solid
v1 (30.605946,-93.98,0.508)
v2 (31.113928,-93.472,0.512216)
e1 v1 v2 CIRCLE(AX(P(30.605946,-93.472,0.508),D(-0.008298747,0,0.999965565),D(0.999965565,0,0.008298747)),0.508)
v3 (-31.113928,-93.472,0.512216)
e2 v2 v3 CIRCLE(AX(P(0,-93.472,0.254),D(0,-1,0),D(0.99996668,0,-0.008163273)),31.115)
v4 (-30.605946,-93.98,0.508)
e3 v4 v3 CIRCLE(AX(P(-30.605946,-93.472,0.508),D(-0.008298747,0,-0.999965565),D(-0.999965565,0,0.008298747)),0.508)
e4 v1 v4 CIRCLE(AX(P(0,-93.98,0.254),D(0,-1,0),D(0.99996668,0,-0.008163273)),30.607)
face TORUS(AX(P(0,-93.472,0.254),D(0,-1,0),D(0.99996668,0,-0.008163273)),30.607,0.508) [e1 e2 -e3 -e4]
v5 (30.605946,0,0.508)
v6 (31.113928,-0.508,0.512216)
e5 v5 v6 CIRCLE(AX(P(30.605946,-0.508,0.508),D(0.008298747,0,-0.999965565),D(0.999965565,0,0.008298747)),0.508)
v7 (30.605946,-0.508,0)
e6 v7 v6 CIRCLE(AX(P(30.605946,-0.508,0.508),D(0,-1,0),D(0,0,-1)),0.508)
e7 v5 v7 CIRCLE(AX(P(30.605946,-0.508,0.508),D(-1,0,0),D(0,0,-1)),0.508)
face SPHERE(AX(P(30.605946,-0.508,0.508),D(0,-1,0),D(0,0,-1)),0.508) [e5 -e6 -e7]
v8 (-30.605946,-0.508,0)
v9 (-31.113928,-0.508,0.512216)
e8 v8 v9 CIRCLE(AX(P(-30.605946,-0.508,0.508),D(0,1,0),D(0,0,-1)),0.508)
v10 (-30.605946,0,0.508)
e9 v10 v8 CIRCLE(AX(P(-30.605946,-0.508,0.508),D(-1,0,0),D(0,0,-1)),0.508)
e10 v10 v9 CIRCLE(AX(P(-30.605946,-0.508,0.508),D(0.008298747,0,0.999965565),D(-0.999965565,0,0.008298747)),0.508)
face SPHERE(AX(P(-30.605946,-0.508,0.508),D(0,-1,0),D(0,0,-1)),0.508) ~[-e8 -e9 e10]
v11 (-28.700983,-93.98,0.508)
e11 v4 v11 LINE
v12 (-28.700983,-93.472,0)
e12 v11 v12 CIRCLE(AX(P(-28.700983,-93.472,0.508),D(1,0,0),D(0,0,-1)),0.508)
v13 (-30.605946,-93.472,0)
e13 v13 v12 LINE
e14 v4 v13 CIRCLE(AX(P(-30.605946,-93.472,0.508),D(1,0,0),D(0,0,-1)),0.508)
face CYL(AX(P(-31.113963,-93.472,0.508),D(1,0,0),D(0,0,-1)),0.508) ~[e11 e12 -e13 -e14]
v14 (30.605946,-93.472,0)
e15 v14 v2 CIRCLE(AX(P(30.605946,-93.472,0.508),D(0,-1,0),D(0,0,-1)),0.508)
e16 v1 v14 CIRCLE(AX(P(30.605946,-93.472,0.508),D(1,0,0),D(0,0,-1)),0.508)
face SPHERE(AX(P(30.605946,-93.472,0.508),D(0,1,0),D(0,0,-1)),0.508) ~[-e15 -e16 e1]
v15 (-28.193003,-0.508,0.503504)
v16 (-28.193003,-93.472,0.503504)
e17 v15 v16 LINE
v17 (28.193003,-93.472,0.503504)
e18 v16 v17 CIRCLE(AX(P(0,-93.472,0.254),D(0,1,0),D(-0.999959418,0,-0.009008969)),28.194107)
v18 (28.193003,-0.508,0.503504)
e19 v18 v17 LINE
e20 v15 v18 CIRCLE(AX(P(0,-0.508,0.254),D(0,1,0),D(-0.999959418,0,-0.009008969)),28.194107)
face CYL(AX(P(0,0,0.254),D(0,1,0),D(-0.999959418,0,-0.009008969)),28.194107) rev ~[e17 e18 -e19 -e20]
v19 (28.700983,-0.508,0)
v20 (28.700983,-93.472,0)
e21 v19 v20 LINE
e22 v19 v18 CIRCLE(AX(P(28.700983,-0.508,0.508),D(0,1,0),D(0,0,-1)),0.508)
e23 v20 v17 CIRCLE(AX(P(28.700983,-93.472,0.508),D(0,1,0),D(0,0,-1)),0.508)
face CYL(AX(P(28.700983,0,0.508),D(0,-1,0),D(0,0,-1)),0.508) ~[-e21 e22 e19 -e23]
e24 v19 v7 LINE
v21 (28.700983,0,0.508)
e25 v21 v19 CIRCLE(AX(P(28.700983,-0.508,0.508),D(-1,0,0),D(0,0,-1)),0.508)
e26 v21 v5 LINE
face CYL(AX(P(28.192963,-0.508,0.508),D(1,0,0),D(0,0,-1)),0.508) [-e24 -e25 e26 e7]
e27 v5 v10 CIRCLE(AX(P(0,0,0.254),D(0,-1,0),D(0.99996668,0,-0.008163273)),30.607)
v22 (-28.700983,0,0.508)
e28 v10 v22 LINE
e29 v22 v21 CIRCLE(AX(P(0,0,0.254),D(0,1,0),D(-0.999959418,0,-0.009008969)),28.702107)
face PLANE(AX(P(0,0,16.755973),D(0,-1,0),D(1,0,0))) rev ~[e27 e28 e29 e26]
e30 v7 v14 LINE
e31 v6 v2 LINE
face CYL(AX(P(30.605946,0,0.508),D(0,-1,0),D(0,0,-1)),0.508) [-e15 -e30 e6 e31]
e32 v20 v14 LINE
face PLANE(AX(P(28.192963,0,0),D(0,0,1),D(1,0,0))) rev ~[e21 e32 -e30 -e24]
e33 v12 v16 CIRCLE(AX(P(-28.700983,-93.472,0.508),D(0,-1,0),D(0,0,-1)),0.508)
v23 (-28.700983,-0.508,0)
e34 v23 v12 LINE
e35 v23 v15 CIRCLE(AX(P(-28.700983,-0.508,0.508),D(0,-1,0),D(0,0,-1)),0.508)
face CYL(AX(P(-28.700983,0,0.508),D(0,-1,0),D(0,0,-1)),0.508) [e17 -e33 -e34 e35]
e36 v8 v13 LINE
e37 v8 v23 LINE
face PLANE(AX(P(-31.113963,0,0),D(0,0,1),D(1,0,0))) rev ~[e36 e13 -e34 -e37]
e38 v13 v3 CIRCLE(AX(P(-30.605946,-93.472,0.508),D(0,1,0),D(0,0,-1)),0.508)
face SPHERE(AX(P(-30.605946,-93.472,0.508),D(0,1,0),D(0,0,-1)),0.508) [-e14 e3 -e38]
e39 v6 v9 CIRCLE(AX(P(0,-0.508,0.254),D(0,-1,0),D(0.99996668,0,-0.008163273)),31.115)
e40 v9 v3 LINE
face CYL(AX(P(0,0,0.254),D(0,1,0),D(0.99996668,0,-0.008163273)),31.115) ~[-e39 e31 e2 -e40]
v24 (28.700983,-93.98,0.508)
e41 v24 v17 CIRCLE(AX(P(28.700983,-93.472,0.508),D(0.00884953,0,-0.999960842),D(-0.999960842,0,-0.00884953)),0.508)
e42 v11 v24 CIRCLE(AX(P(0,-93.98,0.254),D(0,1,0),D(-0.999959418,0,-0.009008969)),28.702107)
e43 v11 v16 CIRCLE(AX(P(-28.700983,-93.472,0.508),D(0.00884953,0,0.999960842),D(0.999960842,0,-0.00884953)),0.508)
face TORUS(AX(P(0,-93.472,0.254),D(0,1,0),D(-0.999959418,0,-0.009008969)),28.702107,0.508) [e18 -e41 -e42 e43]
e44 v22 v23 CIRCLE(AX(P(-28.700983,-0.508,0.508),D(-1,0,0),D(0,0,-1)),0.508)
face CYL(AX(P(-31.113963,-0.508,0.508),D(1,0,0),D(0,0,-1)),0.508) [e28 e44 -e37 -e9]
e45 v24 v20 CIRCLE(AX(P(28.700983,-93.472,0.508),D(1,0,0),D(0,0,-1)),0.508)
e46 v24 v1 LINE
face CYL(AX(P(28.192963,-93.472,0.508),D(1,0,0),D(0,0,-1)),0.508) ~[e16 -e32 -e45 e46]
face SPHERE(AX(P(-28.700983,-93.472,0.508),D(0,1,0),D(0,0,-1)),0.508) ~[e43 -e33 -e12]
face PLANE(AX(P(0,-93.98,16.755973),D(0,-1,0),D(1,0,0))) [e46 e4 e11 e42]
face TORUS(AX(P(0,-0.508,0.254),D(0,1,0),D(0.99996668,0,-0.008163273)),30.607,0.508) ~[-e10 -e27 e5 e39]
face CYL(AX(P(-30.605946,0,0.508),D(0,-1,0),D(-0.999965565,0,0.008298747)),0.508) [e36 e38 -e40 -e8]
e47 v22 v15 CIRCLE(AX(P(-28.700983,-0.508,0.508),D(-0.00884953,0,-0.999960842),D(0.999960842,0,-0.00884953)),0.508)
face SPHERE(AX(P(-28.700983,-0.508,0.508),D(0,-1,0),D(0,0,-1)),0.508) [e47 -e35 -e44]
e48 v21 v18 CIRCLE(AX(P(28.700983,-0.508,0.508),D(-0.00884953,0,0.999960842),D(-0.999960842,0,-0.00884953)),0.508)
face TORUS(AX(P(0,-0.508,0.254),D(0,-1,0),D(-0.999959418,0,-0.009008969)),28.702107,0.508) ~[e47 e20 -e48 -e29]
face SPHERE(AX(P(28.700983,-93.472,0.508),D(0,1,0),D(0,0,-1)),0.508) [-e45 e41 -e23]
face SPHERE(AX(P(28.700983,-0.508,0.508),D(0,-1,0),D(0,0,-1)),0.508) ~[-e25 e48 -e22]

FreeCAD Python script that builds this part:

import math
import FreeCAD as App
import Part
import Sketcher

V = App.Vector
Q = App.Units.Quantity

doc = App.newDocument("Part")
body = doc.addObject("PartDesign::Body", "Body")

# Sketch on XZ plane
sketch1 = doc.addObject("Sketcher::SketchObject", "Sketch")
body.addObject(sketch1)
sketch1.AttachmentSupport = (doc.XZ_Plane, [""])
sketch1.MapMode = "FlatFace"
sketch1.addGeometry([
    Part.LineSegment(V(28.2, 0, 0), V(31.1, 0, 0)),
    Part.ArcOfCircle(Part.Circle(V(0, 0.3, 0), V(0, 0, 1), 31.1), math.radians(0), math.radians(180)),
    Part.LineSegment(V(-31.1, 0, 0), V(-28.2, 0, 0)),
    Part.ArcOfCircle(Part.Circle(V(0, 0.3, 0), V(0, 0, 1), 28.2), math.radians(-1), math.radians(181)),
], False)
sketch1.addConstraint([
    Sketcher.Constraint("Coincident", 0, 2, 1, 1),
    Sketcher.Constraint("Coincident", 1, 2, 2, 1),
    Sketcher.Constraint("Coincident", 2, 2, 3, 2),
    Sketcher.Constraint("Coincident", 3, 1, 0, 1),
    Sketcher.Constraint("Horizontal", 0),
    Sketcher.Constraint("Horizontal", 2),
    Sketcher.Constraint("Coincident", 3, 3, 1, 3),
    Sketcher.Constraint("Symmetric", 0, 2, 1, 2, -1, 1),
    Sketcher.Constraint("PointOnObject", 1, 3, -2),
    Sketcher.Constraint("Radius", 1, Q("1.225 in")),
    Sketcher.Constraint("DistanceX", 0, 1, 0, 2, Q("0.115 in")),
    Sketcher.Constraint("DistanceY", -1, 1, 1, 3, Q("0.01 in")),
])
pad1 = doc.addObject("PartDesign::Pad", "Pad")
body.addObject(pad1)
pad1.Profile = sketch1
pad1.Length = Q("3.7 in")
doc.recompute()

fillet = doc.addObject("PartDesign::Fillet", "Fillet")
body.addObject(fillet)
fillet.Base = (pad1, ["Edge1"])
fillet.UseAllEdges = True
fillet.Radius = Q("0.02 in")

doc.recompute()
